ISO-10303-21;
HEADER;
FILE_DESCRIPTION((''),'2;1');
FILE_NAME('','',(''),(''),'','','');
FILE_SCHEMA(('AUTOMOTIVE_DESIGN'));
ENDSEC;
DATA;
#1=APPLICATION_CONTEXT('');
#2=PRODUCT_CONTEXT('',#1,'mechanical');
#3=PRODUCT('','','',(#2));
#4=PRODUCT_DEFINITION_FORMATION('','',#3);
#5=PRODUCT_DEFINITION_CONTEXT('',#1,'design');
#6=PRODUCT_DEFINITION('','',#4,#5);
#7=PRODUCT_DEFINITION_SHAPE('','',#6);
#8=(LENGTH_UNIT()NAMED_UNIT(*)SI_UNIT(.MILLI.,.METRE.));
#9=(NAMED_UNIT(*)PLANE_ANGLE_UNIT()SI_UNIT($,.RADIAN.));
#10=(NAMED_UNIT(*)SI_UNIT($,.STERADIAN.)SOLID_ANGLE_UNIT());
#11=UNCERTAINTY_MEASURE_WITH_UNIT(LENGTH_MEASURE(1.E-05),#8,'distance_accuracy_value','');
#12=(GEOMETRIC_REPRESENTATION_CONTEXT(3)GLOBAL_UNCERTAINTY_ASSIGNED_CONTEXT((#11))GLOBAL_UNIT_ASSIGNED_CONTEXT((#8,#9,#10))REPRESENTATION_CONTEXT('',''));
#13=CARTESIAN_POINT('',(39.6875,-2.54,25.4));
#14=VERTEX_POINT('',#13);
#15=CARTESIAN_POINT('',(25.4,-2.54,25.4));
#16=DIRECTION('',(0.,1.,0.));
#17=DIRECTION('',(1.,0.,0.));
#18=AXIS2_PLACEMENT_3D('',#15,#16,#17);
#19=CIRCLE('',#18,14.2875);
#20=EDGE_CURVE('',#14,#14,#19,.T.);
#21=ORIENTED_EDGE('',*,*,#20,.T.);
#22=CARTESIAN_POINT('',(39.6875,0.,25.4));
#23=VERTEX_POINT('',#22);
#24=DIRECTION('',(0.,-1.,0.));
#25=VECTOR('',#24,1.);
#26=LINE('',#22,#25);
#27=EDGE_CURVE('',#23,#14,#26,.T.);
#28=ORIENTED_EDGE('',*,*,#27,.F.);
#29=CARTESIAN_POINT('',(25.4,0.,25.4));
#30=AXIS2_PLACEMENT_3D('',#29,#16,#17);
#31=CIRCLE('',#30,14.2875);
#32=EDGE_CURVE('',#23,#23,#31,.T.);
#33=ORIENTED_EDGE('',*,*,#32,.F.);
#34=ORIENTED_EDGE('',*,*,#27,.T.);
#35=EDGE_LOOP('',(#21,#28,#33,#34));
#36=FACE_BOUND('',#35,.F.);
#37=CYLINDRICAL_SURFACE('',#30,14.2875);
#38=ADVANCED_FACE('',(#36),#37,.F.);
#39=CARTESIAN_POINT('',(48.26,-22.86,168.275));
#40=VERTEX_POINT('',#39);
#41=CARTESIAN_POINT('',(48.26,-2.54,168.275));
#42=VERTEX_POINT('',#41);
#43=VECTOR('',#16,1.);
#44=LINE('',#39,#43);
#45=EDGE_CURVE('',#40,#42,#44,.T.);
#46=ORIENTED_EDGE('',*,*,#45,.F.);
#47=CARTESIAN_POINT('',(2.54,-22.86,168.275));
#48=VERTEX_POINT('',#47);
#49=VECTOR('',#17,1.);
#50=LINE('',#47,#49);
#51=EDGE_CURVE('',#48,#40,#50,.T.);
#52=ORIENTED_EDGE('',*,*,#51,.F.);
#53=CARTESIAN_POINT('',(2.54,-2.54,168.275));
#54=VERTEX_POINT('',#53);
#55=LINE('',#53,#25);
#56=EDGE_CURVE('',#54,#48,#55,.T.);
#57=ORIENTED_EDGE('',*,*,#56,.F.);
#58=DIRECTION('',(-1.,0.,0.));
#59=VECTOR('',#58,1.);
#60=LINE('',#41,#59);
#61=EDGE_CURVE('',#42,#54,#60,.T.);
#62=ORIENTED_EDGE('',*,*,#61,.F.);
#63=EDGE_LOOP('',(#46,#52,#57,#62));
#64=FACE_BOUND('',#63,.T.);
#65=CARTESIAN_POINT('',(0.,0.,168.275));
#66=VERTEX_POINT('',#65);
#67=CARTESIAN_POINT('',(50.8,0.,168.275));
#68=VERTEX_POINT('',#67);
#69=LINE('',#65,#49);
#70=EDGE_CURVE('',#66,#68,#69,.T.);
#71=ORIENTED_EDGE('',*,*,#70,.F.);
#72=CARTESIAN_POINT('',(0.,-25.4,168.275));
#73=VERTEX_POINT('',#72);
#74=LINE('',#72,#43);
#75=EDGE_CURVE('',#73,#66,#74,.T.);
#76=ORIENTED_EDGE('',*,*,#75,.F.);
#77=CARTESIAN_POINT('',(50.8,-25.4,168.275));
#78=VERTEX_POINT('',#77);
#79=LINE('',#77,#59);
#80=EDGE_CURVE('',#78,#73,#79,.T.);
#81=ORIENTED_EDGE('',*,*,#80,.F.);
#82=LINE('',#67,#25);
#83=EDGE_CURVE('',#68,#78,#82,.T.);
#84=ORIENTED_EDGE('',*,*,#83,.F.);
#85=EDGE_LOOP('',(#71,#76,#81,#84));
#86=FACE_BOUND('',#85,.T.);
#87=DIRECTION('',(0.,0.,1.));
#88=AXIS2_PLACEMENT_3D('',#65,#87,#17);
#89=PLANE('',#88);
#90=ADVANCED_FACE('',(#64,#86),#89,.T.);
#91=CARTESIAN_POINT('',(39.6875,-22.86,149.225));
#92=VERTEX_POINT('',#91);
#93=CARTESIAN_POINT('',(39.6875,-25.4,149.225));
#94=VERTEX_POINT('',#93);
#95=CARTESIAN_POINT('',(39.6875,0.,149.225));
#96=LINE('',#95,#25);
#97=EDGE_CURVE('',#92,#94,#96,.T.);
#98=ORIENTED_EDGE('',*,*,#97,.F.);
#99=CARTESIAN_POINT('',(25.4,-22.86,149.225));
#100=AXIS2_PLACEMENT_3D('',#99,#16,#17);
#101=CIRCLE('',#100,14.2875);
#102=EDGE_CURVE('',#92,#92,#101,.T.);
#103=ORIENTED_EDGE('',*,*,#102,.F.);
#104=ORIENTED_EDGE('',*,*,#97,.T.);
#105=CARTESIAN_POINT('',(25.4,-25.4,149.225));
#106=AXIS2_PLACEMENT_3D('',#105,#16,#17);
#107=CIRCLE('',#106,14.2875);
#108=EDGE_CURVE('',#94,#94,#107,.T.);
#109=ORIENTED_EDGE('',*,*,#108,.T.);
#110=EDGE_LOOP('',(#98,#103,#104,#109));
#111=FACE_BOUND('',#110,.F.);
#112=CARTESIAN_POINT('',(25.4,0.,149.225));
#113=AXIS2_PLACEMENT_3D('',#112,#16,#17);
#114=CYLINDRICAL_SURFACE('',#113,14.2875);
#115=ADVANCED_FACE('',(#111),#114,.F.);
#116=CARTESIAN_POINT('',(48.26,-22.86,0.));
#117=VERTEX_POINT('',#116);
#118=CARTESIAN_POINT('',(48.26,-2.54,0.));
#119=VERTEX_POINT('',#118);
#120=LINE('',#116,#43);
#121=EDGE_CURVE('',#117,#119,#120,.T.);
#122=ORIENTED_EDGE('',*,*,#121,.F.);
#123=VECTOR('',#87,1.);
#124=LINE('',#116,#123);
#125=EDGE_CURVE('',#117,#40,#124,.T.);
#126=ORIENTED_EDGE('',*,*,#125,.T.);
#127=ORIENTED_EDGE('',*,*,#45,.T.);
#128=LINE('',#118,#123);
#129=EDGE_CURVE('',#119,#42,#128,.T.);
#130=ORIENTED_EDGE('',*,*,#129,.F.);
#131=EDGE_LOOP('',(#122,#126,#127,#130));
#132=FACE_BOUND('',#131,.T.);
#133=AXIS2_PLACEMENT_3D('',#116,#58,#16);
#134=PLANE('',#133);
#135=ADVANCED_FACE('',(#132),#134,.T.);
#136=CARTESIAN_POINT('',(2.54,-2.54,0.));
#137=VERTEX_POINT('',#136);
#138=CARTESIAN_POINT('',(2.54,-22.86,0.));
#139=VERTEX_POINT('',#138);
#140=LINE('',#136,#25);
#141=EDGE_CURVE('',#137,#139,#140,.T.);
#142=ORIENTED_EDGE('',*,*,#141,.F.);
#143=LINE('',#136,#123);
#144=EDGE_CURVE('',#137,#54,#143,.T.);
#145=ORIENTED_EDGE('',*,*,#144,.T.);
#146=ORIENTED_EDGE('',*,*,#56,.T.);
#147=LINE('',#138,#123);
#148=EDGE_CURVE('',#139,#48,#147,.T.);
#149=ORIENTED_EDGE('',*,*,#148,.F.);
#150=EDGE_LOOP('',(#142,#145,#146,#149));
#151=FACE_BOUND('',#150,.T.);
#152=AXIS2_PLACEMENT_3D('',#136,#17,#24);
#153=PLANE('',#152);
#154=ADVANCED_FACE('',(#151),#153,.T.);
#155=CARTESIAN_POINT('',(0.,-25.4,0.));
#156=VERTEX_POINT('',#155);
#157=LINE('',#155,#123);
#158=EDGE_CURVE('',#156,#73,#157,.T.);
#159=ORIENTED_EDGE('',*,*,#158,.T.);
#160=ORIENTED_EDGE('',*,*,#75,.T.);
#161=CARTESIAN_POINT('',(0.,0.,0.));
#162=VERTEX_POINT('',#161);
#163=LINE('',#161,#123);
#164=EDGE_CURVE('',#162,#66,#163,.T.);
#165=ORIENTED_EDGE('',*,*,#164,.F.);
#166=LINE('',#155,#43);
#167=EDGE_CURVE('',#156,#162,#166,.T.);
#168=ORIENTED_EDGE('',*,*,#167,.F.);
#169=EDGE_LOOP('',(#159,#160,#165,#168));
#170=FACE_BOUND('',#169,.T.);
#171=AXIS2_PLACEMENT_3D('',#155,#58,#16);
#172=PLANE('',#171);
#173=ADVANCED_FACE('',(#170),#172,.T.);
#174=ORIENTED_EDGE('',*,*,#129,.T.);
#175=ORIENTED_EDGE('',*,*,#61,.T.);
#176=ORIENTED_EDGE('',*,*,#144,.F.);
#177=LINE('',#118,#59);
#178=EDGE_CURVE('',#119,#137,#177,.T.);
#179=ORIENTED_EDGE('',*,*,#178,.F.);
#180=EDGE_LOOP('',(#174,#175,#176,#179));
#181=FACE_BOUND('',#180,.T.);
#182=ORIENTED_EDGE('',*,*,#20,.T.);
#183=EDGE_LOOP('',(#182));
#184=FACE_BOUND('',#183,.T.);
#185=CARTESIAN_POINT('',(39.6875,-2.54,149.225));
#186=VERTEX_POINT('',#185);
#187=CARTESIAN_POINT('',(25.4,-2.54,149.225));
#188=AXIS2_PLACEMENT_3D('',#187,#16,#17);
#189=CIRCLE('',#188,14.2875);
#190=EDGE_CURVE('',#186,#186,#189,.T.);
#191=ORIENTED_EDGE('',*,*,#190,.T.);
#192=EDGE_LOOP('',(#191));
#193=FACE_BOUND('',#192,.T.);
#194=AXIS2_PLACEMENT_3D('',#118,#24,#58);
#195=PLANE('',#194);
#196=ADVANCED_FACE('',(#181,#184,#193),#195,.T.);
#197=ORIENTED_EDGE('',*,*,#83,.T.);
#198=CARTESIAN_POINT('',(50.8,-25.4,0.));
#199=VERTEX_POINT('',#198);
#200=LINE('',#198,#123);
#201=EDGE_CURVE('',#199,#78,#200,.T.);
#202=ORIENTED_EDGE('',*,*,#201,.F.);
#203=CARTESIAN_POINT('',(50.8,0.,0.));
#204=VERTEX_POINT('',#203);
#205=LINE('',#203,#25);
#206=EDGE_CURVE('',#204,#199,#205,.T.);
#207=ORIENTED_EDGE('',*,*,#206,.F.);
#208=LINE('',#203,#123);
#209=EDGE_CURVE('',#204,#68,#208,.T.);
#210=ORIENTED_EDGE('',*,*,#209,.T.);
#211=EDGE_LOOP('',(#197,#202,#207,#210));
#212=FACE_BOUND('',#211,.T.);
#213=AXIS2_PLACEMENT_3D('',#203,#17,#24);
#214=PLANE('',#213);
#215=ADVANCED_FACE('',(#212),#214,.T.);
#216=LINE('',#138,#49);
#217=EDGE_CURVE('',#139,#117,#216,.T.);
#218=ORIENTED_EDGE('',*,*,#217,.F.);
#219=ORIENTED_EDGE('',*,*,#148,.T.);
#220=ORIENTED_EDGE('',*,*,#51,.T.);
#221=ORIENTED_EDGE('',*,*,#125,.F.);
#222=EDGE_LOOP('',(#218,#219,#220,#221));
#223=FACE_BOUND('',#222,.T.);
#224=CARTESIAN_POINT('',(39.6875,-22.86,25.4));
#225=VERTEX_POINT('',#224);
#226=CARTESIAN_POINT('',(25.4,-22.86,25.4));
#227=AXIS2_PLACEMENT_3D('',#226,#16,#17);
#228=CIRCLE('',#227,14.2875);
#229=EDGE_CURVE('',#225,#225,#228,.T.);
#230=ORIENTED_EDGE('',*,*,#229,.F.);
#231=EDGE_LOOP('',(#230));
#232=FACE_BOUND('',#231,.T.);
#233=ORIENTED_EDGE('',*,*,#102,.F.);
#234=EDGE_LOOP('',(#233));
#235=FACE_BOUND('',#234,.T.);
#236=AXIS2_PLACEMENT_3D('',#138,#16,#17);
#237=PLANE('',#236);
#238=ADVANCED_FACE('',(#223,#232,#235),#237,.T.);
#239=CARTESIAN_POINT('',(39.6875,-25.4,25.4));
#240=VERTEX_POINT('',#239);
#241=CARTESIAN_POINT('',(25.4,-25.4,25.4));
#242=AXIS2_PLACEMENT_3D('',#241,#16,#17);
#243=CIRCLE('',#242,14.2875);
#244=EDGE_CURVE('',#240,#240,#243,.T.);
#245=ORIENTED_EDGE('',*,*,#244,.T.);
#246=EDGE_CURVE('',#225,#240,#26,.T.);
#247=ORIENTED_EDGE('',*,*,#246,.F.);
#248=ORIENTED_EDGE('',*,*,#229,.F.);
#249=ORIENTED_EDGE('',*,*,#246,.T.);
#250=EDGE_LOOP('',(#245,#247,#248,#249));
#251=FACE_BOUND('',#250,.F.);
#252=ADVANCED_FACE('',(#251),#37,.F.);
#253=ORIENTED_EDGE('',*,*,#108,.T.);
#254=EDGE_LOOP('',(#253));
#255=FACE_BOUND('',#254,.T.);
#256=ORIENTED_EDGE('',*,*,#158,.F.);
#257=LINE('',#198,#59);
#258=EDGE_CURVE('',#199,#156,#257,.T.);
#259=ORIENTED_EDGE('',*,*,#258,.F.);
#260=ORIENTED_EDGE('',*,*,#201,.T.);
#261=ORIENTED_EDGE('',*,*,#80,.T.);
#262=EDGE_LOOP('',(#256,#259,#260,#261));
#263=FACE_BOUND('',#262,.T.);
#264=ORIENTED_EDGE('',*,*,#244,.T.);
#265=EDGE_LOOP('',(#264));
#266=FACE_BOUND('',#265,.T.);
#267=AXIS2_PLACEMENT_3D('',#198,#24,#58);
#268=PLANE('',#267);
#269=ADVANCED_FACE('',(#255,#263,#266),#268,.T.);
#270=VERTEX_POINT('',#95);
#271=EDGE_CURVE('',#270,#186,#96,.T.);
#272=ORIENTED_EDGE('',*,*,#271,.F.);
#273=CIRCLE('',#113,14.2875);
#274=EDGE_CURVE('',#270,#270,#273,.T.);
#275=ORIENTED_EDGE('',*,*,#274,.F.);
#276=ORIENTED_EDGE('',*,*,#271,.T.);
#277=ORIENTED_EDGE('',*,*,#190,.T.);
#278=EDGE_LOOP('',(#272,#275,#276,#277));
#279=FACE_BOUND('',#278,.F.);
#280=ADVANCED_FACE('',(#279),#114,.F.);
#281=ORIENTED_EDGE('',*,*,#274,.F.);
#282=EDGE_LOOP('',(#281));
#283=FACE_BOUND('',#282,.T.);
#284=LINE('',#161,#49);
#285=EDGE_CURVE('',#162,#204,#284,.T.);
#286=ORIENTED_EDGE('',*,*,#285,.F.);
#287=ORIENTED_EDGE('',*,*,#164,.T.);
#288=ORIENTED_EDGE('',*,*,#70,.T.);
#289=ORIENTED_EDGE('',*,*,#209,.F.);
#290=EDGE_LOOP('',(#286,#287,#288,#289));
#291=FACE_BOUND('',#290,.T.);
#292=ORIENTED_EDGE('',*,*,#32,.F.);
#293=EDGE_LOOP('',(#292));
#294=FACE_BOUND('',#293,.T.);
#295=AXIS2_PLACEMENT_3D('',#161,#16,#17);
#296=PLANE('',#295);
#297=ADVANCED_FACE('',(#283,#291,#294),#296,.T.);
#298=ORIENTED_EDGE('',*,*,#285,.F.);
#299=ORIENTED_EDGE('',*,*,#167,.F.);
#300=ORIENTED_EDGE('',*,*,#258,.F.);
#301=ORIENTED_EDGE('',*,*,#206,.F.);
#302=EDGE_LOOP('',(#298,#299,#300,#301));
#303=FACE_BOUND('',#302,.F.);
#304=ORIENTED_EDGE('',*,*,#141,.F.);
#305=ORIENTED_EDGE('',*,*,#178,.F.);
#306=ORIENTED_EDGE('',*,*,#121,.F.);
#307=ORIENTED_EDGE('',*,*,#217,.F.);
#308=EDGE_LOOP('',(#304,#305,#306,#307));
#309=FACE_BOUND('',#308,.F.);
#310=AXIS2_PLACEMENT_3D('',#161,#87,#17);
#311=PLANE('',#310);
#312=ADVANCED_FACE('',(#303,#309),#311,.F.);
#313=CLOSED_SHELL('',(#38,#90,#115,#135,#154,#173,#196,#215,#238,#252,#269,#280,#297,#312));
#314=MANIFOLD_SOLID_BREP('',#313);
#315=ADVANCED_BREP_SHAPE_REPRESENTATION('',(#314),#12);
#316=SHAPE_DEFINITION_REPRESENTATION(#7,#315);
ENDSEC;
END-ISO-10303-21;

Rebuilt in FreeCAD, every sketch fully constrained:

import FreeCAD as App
import Part
import Sketcher
Q = App.Units.Quantity


def add_polygon(sketch, points):
    """Adds a closed chain of lines whose ends are joined by coincident constraints."""
    first, n = sketch.GeometryCount, len(points)
    for a, b in zip(points, points[1:] + points[:1]):
        sketch.addGeometry(Part.LineSegment(App.Vector(*a, 0), App.Vector(*b, 0)), False)
    for i in range(n):
        sketch.addConstraint(Sketcher.Constraint("Coincident", first + i, 2, first + (i + 1) % n, 1))

doc = App.newDocument("Part")
params = doc.addObject("Spreadsheet::Sheet", "Params")
for row, (alias, value) in enumerate([
    ("sketch1_width", "2 in"),
    ("sketch1_height", "1 in"),
    ("pad1_length", "6.625 in"),
    ("sketch2_diameter", "1.125 in"),
    ("pocket1_length", "6.625 in"),
], start=1):
    params.set(f"A{row}", alias)
    params.set(f"B{row}", "=" + value)
    params.setAlias(f"B{row}", alias)

body = doc.addObject("PartDesign::Body", "Body")

sketch1 = body.newObject("Sketcher::SketchObject", "Sketch")
sketch1.AttachmentSupport = (doc.getObject("XY_Plane"), [""])
sketch1.MapMode = "FlatFace"
add_polygon(sketch1, [(50.8, 0), (0, 0), (0, -25.4), (50.8, -25.4)])
add_polygon(sketch1, [(2.54, -2.54), (48.26, -2.54), (48.26, -22.86), (2.54, -22.86)])
sketch1.addConstraint(Sketcher.Constraint("Horizontal", 0))
sketch1.addConstraint(Sketcher.Constraint("Vertical", 1))
sketch1.addConstraint(Sketcher.Constraint("Horizontal", 2))
sketch1.addConstraint(Sketcher.Constraint("Vertical", 3))
sketch1.addConstraint(Sketcher.Constraint("Horizontal", 4))
sketch1.addConstraint(Sketcher.Constraint("Vertical", 5))
sketch1.addConstraint(Sketcher.Constraint("Horizontal", 6))
sketch1.addConstraint(Sketcher.Constraint("Vertical", 7))
sketch1.addConstraint(Sketcher.Constraint("Coincident", 0, 2, -1, 1))
sketch1.addConstraint(Sketcher.Constraint("DistanceX", 0, 2, 0, 1, Q("2 in")))
sketch1.addConstraint(Sketcher.Constraint("DistanceY", 1, 2, 1, 1, Q("1 in")))
sketch1.addConstraint(Sketcher.Constraint("DistanceY", 4, 2, -1, 1, Q("0.1 in")))
sketch1.addConstraint(Sketcher.Constraint("DistanceX", -1, 1, 6, 2, Q("0.1 in")))
sketch1.addConstraint(Sketcher.Constraint("DistanceX", 4, 2, 3, 2, Q("0.1 in")))
sketch1.addConstraint(Sketcher.Constraint("DistanceY", 2, 2, 5, 2, Q("0.1 in")))
sketch1.setExpression("Constraints[17]", "Params.sketch1_width")
sketch1.setExpression("Constraints[18]", "Params.sketch1_height")
pad1 = body.newObject("PartDesign::Pad", "Pad")
pad1.Profile = sketch1
pad1.setExpression("Length", "Params.pad1_length")

sketch2 = body.newObject("Sketcher::SketchObject", "Sketch001")
sketch2.AttachmentSupport = (doc.getObject("XZ_Plane"), [""])
sketch2.MapMode = "FlatFace"
sketch2.addGeometry(Part.Circle(App.Vector(25.4, 25.4, 0), App.Vector(0, 0, 1), 14.2875), False)
sketch2.addGeometry(Part.Circle(App.Vector(25.4, 149.225, 0), App.Vector(0, 0, 1), 14.2875), False)
sketch2.addConstraint(Sketcher.Constraint("Equal", 0, 1))
sketch2.addConstraint(Sketcher.Constraint("Vertical", 0, 3, 1, 3))
sketch2.addConstraint(Sketcher.Constraint("Diameter", 0, Q("1.125 in")))
sketch2.addConstraint(Sketcher.Constraint("DistanceX", -1, 1, 0, 3, Q("1 in")))
sketch2.addConstraint(Sketcher.Constraint("DistanceY", -1, 1, 0, 3, Q("1 in")))
sketch2.addConstraint(Sketcher.Constraint("DistanceY", -1, 1, 1, 3, Q("5.875 in")))
sketch2.setExpression("Constraints[2]", "Params.sketch2_diameter")
pocket1 = body.newObject("PartDesign::Pocket", "Pocket")
pocket1.Profile = sketch2
pocket1.setExpression("Length", "Params.pocket1_length")
pocket1.Reversed = True

doc.recompute()
